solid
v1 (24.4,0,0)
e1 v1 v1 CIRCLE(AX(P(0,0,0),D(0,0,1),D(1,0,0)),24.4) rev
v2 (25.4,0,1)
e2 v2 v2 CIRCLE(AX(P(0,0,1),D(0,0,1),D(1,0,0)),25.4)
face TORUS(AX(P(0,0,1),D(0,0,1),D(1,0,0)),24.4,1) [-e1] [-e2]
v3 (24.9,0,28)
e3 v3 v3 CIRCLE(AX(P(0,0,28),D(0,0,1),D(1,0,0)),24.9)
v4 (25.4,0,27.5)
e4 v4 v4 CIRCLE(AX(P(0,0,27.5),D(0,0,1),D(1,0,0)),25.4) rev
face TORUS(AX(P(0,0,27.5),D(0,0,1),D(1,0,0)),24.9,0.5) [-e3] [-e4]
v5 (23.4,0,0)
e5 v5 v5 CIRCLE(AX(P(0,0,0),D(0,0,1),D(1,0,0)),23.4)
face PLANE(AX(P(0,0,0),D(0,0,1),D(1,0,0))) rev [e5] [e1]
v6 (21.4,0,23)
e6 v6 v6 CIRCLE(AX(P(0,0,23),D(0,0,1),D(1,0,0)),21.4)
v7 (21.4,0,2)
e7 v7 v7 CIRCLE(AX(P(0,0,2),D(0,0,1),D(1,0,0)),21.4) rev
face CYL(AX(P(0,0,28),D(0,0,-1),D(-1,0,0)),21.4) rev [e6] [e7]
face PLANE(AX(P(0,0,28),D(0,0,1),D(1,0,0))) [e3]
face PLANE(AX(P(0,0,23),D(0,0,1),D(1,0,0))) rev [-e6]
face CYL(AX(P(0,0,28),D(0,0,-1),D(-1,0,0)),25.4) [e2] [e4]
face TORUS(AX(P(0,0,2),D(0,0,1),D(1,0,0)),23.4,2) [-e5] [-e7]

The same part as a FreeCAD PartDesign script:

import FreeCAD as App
import Part
import Sketcher


def edges_at(feature, points):
    """Names of the edges that pass closest to the given points."""
    edges = feature.Shape.Edges
    near = lambda p: min(range(len(edges)), key=lambda i: edges[i].distToShape(Part.Vertex(*p))[0])
    return sorted({f"Edge{near(p) + 1}" for p in points})

doc = App.newDocument("Part")
params = doc.addObject("Spreadsheet::Sheet", "Params")
for row, (alias, value) in enumerate([
    ("sketch1_diameter", "50.8 mm"),
    ("sketch1_diameter2", "42.8 mm"),
    ("pad1_length", "28 mm"),
    ("sketch2_diameter", "42.8 mm"),
    ("pad2_length", "5 mm"),
    ("fillet_radius", "2 mm"),
    ("fillet2_radius", "1 mm"),
    ("fillet3_radius", "0.5 mm"),
], start=1):
    params.set(f"A{row}", alias)
    params.set(f"B{row}", "=" + value)
    params.setAlias(f"B{row}", alias)

body = doc.addObject("PartDesign::Body", "Body")

sketch1 = body.newObject("Sketcher::SketchObject", "Sketch")
sketch1.AttachmentSupport = (doc.getObject("XY_Plane"), [""])
sketch1.MapMode = "FlatFace"
sketch1.addGeometry(Part.Circle(App.Vector(0, 0, 0), App.Vector(0, 0, 1), 25.4), False)
sketch1.addGeometry(Part.Circle(App.Vector(0, 0, 0), App.Vector(0, 0, 1), 21.4), False)
sketch1.addConstraint(Sketcher.Constraint("Coincident", 0, 3, -1, 1))
sketch1.addConstraint(Sketcher.Constraint("Coincident", 1, 3, -1, 1))
sketch1.addConstraint(Sketcher.Constraint("Diameter", 0, 50.8))
sketch1.addConstraint(Sketcher.Constraint("Diameter", 1, 42.8))
sketch1.setExpression("Constraints[2]", "Params.sketch1_diameter")
sketch1.setExpression("Constraints[3]", "Params.sketch1_diameter2")
pad1 = body.newObject("PartDesign::Pad", "Pad")
pad1.Profile = sketch1
pad1.setExpression("Length", "Params.pad1_length")

sketch2 = body.newObject("Sketcher::SketchObject", "Sketch001")
sketch2.AttachmentSupport = (doc.getObject("XY_Plane"), [""])
sketch2.MapMode = "FlatFace"
sketch2.AttachmentOffset = App.Placement(App.Vector(0, 0, 28), App.Rotation())
sketch2.addGeometry(Part.Circle(App.Vector(0, 0, 0), App.Vector(0, 0, 1), 21.4), False)
sketch2.addConstraint(Sketcher.Constraint("Coincident", 0, 3, -1, 1))
sketch2.addConstraint(Sketcher.Constraint("Diameter", 0, 42.8))
sketch2.setExpression("Constraints[1]", "Params.sketch2_diameter")
pad2 = body.newObject("PartDesign::Pad", "Pad001")
pad2.Profile = sketch2
pad2.setExpression("Length", "Params.pad2_length")
pad2.Reversed = True
doc.recompute()

fillet = body.newObject("PartDesign::Fillet", "Fillet")
fillet.Base = (pad2, edges_at(pad2, [(-21.4, 0, 0)]))
fillet.setExpression("Radius", "Params.fillet_radius")
doc.recompute()

fillet2 = body.newObject("PartDesign::Fillet", "Fillet001")
fillet2.Base = (fillet, edges_at(fillet, [(-25.4, 0, 0)]))
fillet2.setExpression("Radius", "Params.fillet2_radius")
doc.recompute()

fillet3 = body.newObject("PartDesign::Fillet", "Fillet002")
fillet3.Base = (fillet2, edges_at(fillet2, [(-25.4, 0, 28)]))
fillet3.setExpression("Radius", "Params.fillet3_radius")

doc.recompute()
